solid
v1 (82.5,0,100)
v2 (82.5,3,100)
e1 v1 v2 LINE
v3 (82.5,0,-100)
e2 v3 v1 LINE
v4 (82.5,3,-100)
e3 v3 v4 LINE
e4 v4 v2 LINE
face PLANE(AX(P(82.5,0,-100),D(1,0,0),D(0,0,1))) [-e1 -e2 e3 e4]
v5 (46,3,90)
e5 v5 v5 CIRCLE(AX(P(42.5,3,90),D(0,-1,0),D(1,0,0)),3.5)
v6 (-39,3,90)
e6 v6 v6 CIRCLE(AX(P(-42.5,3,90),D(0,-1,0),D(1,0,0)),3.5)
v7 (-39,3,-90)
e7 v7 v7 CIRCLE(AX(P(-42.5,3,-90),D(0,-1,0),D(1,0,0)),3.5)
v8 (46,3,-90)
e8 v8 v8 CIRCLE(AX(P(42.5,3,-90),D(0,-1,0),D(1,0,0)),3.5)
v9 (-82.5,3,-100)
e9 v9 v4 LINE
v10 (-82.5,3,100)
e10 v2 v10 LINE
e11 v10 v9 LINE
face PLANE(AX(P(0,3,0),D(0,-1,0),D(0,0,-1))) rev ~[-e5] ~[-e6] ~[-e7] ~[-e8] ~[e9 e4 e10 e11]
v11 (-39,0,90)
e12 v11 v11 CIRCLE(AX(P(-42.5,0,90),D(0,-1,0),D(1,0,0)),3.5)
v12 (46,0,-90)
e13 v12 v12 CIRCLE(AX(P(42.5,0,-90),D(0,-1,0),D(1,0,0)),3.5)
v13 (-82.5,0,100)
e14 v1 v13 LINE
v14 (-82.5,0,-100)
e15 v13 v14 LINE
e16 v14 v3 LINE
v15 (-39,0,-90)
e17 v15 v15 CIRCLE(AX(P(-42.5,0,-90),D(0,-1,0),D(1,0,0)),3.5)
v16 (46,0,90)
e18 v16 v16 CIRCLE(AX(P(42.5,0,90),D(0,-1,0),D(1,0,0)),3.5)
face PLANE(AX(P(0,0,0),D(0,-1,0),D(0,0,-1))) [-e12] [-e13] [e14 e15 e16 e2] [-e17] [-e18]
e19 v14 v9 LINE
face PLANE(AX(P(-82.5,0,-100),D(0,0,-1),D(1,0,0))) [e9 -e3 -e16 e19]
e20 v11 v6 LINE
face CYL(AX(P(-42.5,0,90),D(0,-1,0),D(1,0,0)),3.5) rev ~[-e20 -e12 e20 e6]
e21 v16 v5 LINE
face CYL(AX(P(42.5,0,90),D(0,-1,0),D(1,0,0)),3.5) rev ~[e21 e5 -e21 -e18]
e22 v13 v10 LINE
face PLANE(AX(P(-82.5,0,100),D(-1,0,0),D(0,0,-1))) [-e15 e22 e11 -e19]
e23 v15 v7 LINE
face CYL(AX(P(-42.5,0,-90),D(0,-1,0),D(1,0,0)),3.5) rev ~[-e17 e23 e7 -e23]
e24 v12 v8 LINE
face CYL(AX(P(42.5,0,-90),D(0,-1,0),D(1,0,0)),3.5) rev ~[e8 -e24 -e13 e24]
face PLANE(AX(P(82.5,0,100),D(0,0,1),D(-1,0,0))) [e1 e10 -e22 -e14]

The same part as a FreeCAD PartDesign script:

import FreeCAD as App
import Part
import Sketcher
from FreeCAD import Vector
Q = App.Units.Quantity

doc = App.newDocument("Part")
body = doc.addObject("PartDesign::Body", "Body")

sketch1 = body.newObject("Sketcher::SketchObject", "Sketch")
sketch1.AttachmentSupport = (doc.getObject("XZ_Plane"), [""])
sketch1.MapMode = "FlatFace"
sketch1.addGeometry([
    Part.LineSegment(Vector(-82, 100, 0), Vector(-82, -100, 0)),
    Part.LineSegment(Vector(-82, -100, 0), Vector(82, -100, 0)),
    Part.LineSegment(Vector(82, -100, 0), Vector(82, 100, 0)),
    Part.LineSegment(Vector(82, 100, 0), Vector(-82, 100, 0)),
], False)
sketch1.addConstraint([
    Sketcher.Constraint("Coincident", 0, 2, 1, 1),
    Sketcher.Constraint("Coincident", 1, 2, 2, 1),
    Sketcher.Constraint("Coincident", 2, 2, 3, 1),
    Sketcher.Constraint("Coincident", 3, 2, 0, 1),
    Sketcher.Constraint("Vertical", 0),
    Sketcher.Constraint("Horizontal", 1),
    Sketcher.Constraint("Vertical", 2),
    Sketcher.Constraint("Horizontal", 3),
    Sketcher.Constraint("Symmetric", 0, 2, 2, 2, -1, 1),
    Sketcher.Constraint("DistanceX", 0, 2, -1, 1, Q("82.5 mm")),
    Sketcher.Constraint("DistanceY", 0, 2, 0, 1, Q("200 mm")),
])
pad1 = body.newObject("PartDesign::Pad", "Pad")
pad1.Profile = sketch1
pad1.Length = 3
pad1.Reversed = True

sketch2 = body.newObject("Sketcher::SketchObject", "Sketch001")
sketch2.AttachmentSupport = (doc.getObject("XZ_Plane"), [""])
sketch2.MapMode = "FlatFace"
sketch2.addGeometry([
    Part.Circle(Vector(-42.5, 90, 0), Vector(0, 0, 1), 3.5),
    Part.Circle(Vector(42.5, 90, 0), Vector(0, 0, 1), 3.5),
], False)
sketch2.addConstraint([
    Sketcher.Constraint("Equal", 0, 1),
    Sketcher.Constraint("Symmetric", 0, 3, 1, 3, -2),
    Sketcher.Constraint("Diameter", 0, Q("7 mm")),
    Sketcher.Constraint("DistanceX", 0, 3, -1, 1, Q("42.5 mm")),
    Sketcher.Constraint("DistanceY", -1, 1, 0, 3, Q("90 mm")),
])
pocket1 = body.newObject("PartDesign::Pocket", "Pocket")
pocket1.Profile = sketch2
pocket1.Type = "ThroughAll"

sketch3 = body.newObject("Sketcher::SketchObject", "Sketch002")
sketch3.AttachmentSupport = (doc.getObject("XZ_Plane"), [""])
sketch3.MapMode = "FlatFace"
sketch3.addGeometry([
    Part.Circle(Vector(-42.5, -90, 0), Vector(0, 0, 1), 3.5),
    Part.Circle(Vector(42.5, -90, 0), Vector(0, 0, 1), 3.5),
], False)
sketch3.addConstraint([
    Sketcher.Constraint("Equal", 0, 1),
    Sketcher.Constraint("Symmetric", 0, 3, 1, 3, -2),
    Sketcher.Constraint("Diameter", 0, Q("7 mm")),
    Sketcher.Constraint("DistanceY", 0, 3, -1, 1, Q("90 mm")),
    Sketcher.Constraint("DistanceX", 0, 3, 1, 3, Q("85 mm")),
])
pocket2 = body.newObject("PartDesign::Pocket", "Pocket001")
pocket2.Profile = sketch3
pocket2.Type = "ThroughAll"

doc.recompute()
